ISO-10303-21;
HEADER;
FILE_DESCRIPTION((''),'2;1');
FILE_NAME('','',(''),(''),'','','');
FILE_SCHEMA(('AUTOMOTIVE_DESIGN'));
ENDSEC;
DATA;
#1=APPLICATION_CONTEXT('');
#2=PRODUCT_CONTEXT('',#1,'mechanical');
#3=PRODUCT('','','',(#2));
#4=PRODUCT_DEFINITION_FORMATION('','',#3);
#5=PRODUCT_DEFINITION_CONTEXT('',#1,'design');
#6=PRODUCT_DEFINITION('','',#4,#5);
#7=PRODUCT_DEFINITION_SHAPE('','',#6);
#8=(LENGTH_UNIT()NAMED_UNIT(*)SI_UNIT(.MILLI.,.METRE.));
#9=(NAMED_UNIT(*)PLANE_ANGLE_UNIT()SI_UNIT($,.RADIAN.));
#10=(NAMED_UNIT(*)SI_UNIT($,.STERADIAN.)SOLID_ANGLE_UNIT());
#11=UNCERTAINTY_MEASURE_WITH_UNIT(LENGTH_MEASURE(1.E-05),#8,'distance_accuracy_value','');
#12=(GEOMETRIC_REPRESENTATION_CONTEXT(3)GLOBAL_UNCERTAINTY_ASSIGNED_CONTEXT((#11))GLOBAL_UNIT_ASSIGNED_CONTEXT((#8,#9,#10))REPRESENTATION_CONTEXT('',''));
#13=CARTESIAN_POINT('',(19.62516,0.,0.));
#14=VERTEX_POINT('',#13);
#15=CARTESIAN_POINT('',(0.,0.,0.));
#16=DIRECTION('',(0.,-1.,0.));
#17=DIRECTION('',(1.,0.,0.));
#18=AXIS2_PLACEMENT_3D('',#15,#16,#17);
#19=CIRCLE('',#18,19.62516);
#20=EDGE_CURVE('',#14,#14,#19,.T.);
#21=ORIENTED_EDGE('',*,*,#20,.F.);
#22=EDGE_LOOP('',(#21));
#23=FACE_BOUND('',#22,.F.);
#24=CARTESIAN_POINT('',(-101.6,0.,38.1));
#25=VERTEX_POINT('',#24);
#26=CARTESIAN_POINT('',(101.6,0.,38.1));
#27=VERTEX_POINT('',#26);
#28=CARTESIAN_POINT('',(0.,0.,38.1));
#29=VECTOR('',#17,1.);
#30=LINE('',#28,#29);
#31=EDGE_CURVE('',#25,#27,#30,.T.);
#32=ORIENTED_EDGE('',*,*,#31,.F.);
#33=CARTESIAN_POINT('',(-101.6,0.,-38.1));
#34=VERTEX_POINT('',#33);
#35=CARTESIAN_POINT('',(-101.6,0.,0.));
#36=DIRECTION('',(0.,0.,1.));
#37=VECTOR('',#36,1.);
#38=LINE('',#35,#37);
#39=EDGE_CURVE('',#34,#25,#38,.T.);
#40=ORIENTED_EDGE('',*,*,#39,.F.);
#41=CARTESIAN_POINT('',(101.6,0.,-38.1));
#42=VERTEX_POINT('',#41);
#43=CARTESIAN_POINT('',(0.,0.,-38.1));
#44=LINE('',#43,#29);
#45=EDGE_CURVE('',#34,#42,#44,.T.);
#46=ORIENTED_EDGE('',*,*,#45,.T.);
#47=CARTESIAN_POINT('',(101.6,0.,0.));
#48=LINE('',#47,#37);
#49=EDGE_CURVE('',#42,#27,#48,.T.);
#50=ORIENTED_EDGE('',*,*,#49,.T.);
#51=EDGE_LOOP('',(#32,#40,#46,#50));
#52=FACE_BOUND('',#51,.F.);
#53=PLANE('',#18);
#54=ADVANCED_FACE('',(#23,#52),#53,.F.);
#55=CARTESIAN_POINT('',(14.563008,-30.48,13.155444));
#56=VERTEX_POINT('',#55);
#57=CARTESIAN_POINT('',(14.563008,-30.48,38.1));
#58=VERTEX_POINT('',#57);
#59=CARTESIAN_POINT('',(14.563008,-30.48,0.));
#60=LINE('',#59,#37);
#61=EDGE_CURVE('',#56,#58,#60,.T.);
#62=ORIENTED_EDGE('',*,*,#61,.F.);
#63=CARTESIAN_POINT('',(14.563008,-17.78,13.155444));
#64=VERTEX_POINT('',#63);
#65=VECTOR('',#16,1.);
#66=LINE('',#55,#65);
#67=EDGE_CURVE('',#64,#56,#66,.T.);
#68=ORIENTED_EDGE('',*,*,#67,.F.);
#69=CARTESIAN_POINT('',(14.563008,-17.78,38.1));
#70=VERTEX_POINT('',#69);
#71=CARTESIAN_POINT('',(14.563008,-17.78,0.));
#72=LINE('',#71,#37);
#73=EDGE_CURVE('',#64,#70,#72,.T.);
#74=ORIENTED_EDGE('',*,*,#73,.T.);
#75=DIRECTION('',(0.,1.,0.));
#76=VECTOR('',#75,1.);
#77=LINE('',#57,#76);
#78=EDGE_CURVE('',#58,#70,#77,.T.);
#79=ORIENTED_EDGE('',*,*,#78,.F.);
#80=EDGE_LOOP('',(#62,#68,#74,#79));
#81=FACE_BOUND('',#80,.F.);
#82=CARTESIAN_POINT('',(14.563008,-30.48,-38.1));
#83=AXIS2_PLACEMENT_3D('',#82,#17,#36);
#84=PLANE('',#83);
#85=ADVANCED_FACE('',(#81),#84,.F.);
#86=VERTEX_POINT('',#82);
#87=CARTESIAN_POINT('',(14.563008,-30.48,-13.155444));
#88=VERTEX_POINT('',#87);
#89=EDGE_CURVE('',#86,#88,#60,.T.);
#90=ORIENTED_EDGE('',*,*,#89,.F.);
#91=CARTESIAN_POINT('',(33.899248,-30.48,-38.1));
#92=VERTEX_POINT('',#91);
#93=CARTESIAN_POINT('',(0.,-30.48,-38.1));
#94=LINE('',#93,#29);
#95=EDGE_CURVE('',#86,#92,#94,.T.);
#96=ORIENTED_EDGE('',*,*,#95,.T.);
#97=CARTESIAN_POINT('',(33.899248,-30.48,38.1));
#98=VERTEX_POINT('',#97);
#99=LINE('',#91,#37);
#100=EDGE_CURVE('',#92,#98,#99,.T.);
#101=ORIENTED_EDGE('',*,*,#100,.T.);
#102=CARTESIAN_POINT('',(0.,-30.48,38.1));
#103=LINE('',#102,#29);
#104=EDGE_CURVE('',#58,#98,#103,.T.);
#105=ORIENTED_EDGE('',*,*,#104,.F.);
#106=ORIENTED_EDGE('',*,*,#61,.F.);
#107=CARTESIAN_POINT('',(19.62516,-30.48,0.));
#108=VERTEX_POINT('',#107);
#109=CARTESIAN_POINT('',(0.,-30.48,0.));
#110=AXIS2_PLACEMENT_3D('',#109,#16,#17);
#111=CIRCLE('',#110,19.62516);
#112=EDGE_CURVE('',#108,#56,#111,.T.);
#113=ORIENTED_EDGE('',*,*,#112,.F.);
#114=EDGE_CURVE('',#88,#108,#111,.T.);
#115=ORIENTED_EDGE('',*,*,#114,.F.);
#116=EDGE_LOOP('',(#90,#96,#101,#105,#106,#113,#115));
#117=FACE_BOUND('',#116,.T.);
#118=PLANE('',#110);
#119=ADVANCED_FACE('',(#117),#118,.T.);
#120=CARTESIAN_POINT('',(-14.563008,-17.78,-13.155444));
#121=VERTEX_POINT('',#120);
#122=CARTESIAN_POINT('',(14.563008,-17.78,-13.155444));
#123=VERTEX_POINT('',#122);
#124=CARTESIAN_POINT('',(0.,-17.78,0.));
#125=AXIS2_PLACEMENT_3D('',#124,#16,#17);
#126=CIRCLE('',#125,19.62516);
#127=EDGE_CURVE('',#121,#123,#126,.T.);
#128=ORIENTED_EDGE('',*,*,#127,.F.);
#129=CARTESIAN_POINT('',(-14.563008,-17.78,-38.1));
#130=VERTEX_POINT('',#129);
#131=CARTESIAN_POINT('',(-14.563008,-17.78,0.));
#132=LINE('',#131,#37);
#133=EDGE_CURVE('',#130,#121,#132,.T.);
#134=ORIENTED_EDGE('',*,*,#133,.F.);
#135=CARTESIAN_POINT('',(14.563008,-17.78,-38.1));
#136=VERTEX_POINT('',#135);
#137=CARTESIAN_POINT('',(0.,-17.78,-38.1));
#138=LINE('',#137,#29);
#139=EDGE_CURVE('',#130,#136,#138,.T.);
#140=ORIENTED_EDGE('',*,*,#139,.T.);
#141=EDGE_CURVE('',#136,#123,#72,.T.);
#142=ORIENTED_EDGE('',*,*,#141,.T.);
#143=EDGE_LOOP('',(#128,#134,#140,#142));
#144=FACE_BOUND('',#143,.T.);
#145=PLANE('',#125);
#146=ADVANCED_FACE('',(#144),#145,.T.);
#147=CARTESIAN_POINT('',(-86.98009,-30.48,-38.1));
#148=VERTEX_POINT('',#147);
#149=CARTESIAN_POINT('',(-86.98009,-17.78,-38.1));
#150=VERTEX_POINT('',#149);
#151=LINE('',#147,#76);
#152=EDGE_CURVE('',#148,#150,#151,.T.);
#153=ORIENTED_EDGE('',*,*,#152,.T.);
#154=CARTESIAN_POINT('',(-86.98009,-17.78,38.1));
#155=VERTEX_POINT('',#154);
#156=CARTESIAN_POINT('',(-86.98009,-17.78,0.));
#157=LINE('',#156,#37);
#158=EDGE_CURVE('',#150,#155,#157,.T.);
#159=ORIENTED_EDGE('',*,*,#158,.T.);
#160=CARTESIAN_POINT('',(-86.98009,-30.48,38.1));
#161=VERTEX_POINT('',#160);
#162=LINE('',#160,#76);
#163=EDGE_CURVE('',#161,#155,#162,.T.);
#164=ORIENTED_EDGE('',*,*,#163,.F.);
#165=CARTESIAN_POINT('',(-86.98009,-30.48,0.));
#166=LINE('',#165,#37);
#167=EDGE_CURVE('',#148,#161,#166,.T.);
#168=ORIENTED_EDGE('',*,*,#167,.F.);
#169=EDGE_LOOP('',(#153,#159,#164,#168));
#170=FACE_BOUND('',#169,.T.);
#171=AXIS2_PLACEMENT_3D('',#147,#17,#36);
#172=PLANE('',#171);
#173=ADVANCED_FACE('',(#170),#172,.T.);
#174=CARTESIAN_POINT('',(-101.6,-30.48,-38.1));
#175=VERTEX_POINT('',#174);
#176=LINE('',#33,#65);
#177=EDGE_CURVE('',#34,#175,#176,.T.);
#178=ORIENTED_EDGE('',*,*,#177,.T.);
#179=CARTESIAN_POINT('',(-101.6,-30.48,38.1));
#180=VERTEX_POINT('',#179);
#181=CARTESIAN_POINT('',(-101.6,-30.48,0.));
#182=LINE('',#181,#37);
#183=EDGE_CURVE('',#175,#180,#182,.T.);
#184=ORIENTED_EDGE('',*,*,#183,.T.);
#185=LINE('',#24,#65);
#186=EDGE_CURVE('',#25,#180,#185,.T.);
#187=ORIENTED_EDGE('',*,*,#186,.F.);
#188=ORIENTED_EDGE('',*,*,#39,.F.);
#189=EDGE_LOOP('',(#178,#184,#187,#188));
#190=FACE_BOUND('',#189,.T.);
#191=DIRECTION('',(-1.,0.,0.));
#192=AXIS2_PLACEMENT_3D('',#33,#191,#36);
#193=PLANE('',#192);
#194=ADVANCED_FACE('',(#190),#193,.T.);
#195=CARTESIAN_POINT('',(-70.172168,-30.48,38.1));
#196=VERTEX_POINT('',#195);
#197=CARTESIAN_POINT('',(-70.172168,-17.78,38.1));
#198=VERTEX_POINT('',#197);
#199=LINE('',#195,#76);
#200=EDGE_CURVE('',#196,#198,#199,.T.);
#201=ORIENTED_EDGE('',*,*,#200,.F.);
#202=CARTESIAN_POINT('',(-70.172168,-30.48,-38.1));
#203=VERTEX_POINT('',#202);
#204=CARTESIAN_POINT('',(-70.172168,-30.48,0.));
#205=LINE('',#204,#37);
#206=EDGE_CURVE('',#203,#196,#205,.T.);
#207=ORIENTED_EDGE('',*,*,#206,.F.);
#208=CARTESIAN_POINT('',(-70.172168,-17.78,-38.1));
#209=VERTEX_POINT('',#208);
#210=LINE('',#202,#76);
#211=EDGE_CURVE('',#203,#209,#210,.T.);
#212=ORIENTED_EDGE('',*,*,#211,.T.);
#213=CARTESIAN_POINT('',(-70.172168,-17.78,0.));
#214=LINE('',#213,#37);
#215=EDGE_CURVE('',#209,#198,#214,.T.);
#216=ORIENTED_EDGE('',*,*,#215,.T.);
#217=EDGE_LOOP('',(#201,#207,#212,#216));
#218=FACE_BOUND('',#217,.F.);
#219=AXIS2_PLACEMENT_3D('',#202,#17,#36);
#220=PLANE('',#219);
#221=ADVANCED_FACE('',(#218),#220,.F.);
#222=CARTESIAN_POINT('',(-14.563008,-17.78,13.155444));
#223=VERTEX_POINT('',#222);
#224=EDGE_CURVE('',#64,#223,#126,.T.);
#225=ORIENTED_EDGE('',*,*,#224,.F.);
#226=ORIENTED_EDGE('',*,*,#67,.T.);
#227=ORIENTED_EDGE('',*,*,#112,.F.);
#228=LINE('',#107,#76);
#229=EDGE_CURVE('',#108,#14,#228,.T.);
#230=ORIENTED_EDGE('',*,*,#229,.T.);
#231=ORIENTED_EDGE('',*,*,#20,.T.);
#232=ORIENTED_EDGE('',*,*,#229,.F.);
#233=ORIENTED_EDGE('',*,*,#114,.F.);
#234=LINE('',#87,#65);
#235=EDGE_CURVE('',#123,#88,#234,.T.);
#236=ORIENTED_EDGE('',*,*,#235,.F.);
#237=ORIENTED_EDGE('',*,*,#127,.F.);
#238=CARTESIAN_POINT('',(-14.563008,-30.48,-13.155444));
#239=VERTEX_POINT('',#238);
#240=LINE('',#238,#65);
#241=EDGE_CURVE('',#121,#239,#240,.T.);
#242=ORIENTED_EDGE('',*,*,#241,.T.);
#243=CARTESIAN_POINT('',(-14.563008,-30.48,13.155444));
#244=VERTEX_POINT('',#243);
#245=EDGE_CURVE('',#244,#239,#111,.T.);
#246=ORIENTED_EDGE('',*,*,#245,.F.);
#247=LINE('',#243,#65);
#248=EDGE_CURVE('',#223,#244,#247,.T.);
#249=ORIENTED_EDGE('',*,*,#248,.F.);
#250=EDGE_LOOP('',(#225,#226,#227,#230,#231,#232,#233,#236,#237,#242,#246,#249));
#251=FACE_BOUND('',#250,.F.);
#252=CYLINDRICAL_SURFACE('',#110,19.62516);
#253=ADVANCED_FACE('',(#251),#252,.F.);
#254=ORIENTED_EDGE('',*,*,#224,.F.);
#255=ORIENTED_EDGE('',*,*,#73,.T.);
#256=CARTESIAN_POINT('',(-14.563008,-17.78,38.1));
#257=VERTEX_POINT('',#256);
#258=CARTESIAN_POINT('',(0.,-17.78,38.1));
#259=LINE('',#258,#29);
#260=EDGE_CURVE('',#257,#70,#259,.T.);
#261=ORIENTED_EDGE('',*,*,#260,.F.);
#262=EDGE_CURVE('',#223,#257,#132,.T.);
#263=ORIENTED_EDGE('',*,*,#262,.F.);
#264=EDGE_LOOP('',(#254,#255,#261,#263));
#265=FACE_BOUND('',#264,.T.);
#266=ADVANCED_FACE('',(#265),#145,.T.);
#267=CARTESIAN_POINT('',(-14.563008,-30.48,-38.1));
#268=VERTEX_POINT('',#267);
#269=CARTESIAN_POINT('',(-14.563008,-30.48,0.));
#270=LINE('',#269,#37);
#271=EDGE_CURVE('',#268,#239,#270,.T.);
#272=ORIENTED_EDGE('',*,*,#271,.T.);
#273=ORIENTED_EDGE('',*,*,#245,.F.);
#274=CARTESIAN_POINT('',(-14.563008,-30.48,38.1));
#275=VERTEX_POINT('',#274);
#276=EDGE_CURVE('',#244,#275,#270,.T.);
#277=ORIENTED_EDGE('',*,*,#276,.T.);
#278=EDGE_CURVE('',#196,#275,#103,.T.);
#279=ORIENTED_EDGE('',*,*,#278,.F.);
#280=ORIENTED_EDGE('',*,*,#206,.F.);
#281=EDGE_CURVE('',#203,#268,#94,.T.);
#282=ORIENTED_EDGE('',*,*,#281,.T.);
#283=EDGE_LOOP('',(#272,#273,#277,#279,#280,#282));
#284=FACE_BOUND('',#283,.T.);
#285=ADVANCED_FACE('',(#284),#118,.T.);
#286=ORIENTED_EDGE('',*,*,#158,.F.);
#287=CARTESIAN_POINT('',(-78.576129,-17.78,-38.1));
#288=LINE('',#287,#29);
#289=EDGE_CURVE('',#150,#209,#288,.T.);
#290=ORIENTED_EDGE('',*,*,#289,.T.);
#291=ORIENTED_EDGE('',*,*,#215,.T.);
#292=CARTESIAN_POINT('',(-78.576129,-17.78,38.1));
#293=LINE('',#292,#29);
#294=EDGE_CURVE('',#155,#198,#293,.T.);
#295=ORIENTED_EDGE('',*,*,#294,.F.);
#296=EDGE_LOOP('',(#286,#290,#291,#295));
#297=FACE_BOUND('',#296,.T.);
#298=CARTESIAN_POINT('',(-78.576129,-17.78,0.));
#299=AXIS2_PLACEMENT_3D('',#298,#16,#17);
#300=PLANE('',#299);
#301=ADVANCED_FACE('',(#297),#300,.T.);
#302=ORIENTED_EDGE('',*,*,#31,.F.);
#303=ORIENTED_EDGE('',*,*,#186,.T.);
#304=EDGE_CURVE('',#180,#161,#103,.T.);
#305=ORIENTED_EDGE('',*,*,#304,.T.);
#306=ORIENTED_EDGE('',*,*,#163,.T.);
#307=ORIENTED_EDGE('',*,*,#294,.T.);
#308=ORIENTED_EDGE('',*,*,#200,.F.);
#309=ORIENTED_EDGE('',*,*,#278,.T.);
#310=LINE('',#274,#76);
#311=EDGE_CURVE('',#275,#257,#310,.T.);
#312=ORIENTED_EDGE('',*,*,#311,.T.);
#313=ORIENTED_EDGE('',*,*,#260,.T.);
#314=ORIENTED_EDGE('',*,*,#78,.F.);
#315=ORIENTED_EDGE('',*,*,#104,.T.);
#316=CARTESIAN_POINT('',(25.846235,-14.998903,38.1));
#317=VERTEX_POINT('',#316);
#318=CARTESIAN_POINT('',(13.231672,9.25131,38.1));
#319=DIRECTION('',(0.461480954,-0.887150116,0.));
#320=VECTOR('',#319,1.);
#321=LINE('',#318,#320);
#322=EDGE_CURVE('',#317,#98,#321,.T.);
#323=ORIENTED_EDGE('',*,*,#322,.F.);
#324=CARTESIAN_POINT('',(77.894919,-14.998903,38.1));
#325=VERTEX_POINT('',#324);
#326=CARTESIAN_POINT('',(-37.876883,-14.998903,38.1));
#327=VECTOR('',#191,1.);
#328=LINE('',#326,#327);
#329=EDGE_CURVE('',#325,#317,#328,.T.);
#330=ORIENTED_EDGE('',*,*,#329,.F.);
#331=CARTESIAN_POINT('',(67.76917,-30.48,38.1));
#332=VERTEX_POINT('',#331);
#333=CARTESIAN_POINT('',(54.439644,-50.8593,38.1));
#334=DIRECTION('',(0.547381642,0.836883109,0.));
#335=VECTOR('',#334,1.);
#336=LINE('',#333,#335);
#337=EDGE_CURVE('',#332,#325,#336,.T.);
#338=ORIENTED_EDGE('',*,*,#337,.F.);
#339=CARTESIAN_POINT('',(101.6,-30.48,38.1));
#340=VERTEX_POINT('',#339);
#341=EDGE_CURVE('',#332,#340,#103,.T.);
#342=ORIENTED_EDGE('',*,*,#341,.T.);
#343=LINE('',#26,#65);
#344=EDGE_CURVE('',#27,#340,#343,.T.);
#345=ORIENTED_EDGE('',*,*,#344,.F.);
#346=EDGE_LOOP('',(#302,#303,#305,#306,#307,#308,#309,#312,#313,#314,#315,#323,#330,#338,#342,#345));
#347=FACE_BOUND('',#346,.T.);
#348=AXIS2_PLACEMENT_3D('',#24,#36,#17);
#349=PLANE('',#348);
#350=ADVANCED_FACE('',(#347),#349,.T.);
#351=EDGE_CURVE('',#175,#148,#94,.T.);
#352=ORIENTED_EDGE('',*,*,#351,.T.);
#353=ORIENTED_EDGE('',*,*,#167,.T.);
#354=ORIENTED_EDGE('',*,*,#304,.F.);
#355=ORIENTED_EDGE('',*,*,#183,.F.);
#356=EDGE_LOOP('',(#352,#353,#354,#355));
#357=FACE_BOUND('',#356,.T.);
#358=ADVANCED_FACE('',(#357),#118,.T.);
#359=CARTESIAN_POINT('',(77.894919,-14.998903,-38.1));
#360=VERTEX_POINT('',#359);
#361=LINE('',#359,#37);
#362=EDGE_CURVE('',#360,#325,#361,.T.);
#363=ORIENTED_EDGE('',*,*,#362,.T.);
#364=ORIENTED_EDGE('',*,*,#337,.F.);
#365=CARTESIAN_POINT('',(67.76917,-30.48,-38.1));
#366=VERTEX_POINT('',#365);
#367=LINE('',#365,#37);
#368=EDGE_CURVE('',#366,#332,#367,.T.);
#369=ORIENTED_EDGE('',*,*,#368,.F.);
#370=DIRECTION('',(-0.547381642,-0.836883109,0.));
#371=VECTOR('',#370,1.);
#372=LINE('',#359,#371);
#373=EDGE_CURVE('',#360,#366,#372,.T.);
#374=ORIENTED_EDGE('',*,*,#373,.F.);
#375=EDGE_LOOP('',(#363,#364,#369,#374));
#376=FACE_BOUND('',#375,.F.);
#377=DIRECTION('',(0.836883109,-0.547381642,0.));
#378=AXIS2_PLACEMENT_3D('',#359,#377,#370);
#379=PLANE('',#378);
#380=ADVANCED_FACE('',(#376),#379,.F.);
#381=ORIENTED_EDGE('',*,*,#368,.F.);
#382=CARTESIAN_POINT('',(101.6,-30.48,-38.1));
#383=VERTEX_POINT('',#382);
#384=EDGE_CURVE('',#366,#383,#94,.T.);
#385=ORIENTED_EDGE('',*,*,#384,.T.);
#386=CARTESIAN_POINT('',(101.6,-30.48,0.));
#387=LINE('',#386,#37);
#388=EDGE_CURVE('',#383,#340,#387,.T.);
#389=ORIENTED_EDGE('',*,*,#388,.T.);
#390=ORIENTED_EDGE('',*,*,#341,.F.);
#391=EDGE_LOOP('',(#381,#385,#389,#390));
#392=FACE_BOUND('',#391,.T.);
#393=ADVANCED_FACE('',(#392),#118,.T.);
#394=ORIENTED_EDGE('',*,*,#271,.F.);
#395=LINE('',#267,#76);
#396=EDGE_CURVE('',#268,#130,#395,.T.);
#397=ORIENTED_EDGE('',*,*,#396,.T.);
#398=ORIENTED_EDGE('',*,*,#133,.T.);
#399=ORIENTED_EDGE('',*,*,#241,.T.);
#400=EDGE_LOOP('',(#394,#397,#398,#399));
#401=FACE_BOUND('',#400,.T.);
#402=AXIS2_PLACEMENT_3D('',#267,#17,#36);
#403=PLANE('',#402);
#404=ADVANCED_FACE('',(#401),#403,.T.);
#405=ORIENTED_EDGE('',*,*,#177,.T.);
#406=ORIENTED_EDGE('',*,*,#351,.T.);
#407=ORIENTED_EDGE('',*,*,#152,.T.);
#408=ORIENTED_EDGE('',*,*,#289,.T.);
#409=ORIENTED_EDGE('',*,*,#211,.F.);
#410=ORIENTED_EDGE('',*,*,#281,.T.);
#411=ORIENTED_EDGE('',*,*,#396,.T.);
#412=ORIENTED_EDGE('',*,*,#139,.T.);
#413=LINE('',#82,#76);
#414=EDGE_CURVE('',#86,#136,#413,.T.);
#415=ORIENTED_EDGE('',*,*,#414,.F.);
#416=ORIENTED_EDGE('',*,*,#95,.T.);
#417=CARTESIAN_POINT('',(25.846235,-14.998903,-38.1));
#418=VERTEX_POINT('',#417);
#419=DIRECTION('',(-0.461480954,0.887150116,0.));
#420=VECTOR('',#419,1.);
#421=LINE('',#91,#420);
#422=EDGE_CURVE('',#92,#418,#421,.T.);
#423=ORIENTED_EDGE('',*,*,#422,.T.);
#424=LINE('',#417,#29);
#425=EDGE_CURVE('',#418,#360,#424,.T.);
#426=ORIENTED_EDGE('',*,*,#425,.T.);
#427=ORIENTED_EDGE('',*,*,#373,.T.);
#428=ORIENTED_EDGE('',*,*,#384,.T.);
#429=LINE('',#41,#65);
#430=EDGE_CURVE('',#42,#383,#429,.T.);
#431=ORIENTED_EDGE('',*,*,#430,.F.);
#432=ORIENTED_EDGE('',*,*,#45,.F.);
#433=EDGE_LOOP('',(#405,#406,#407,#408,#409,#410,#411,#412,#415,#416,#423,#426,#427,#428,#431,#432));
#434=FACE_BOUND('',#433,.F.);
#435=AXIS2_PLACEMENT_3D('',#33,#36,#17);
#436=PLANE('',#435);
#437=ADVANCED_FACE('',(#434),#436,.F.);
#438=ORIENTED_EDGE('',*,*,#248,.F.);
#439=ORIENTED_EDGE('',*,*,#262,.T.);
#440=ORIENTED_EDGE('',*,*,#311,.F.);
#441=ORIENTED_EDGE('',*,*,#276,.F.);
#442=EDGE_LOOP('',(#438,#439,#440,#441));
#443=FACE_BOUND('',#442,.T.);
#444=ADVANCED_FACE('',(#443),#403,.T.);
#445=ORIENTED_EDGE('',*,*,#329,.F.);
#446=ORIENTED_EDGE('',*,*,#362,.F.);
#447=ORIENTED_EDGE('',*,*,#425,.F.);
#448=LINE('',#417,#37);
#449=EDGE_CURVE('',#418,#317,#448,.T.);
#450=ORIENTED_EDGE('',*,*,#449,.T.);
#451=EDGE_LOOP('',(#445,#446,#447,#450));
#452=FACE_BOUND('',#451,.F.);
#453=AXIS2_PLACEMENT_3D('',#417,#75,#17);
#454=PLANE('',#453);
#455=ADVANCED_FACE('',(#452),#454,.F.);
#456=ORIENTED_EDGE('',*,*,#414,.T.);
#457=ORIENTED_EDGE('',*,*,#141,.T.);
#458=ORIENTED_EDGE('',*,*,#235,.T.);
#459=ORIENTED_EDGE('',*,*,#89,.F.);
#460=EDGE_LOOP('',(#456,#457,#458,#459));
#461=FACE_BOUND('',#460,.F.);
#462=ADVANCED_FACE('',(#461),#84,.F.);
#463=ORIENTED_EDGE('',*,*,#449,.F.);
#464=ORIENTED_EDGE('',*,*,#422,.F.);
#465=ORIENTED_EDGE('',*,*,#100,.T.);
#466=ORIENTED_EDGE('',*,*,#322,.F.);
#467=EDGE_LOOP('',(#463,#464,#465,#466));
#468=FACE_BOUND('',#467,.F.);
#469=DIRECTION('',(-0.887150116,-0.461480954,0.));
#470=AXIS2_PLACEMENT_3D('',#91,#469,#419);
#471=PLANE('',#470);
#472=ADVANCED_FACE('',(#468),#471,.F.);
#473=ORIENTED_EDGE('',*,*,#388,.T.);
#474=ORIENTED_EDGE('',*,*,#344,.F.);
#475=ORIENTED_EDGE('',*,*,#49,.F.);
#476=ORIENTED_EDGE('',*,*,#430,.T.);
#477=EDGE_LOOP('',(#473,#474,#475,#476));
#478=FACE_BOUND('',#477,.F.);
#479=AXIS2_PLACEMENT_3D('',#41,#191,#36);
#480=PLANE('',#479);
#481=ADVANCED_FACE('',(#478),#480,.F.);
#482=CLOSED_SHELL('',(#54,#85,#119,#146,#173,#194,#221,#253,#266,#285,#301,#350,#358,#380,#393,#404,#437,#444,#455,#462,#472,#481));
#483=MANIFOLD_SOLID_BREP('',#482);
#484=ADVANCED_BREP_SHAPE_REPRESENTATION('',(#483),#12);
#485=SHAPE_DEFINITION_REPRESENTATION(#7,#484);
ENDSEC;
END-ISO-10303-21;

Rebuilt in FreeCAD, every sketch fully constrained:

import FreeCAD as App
import Part
import Sketcher
Q = App.Units.Quantity


def add_polygon(sketch, points):
    """Adds a closed chain of lines whose ends are joined by coincident constraints."""
    first, n = sketch.GeometryCount, len(points)
    for a, b in zip(points, points[1:] + points[:1]):
        sketch.addGeometry(Part.LineSegment(App.Vector(*a, 0), App.Vector(*b, 0)), False)
    for i in range(n):
        sketch.addConstraint(Sketcher.Constraint("Coincident", first + i, 2, first + (i + 1) % n, 1))

doc = App.newDocument("Part")
body = doc.addObject("PartDesign::Body", "Body")

# Sketch on XZ plane
sketch1 = body.newObject("Sketcher::SketchObject", "Sketch")
sketch1.AttachmentSupport = (doc.getObject("XZ_Plane"), [""])
sketch1.MapMode = "FlatFace"
add_polygon(sketch1, [(-102, 38), (-102, -38), (102, -38), (102, 38)])  # lines 0-3
sketch1.addConstraint([
    Sketcher.Constraint("Vertical", 0),
    Sketcher.Constraint("Horizontal", 1),
    Sketcher.Constraint("Vertical", 2),
    Sketcher.Constraint("Horizontal", 3),
    Sketcher.Constraint("Symmetric", 0, 2, 2, 2, -1, 1),
    Sketcher.Constraint("DistanceX", 1, 1, 1, 2, Q("8 in")),
    Sketcher.Constraint("DistanceY", 0, 2, 0, 1, Q("3 in")),
])
pad1 = body.newObject("PartDesign::Pad", "Pad")
pad1.Profile = sketch1
pad1.Length = Q("1.2 in")

# Sketch on XZ plane
sketch2 = body.newObject("Sketcher::SketchObject", "Sketch001")
sketch2.AttachmentSupport = (doc.getObject("XZ_Plane"), [""])
sketch2.MapMode = "FlatFace"
sketch2.AttachmentOffset = App.Placement(App.Vector(0, 0, 1.2 * 25.4), App.Rotation())
sketch2.addGeometry(Part.Circle(App.Vector(0, 0, 0), App.Vector(0, 0, 1), 20), False)
sketch2.addConstraint([
    Sketcher.Constraint("Coincident", 0, 3, -1, 1),
    Sketcher.Constraint("Diameter", 0, Q("39.25032 mm")),
])
pocket1 = body.newObject("PartDesign::Pocket", "Pocket")
pocket1.Profile = sketch2
pocket1.Type = "ThroughAll"

# Sketch on XZ plane
sketch3 = body.newObject("Sketcher::SketchObject", "Sketch002")
sketch3.AttachmentSupport = (doc.getObject("XZ_Plane"), [""])
sketch3.MapMode = "FlatFace"
sketch3.AttachmentOffset = App.Placement(App.Vector(0, 0, 1.2 * 25.4), App.Rotation())
add_polygon(sketch3, [(-87, 38), (-87, -38), (-70, -38), (-70, 38)])  # lines 0-3
add_polygon(sketch3, [(-15, 38), (-15, -38), (15, -38), (15, 38)])  # lines 4-7
sketch3.addConstraint([
    Sketcher.Constraint("Vertical", 0),
    Sketcher.Constraint("Horizontal", 1),
    Sketcher.Constraint("Vertical", 2),
    Sketcher.Constraint("Horizontal", 3),
    Sketcher.Constraint("Vertical", 4),
    Sketcher.Constraint("Horizontal", 5),
    Sketcher.Constraint("Vertical", 6),
    Sketcher.Constraint("Horizontal", 7),
    Sketcher.Constraint("Symmetric", 4, 2, 6, 2, -1, 1),
    Sketcher.Constraint("Horizontal", 1, 2, 4, 2),
    Sketcher.Constraint("Horizontal", 3, 2, 6, 2),
    Sketcher.Constraint("DistanceY", 0, 2, 0, 1, Q("3 in")),
    Sketcher.Constraint("DistanceX", 0, 2, 5, 2, Q("101.543098 mm")),
    Sketcher.Constraint("DistanceX", 1, 1, 1, 2, Q("16.807922 mm")),
    Sketcher.Constraint("DistanceX", 5, 1, 5, 2, Q("29.126016 mm")),
])
pocket2 = body.newObject("PartDesign::Pocket", "Pocket001")
pocket2.Profile = sketch3
pocket2.Length = Q("0.5 in")

# Sketch on XY plane
sketch4 = body.newObject("Sketcher::SketchObject", "Sketch003")
sketch4.AttachmentSupport = (doc.getObject("XY_Plane"), [""])
sketch4.MapMode = "FlatFace"
sketch4.AttachmentOffset = App.Placement(App.Vector(0, 0, -1.5 * 25.4), App.Rotation())
add_polygon(sketch4, [(68, -30), (34, -30), (26, -15), (78, -15)])  # lines 0-3
sketch4.addConstraint([
    Sketcher.Constraint("Horizontal", 0),
    Sketcher.Constraint("Horizontal", 2),
    Sketcher.Constraint("DistanceY", 0, 2, -1, 1, Q("1.2 in")),
    Sketcher.Constraint("Distance", 1, Q("17.450369 mm")),
    Sketcher.Constraint("DistanceX", 0, 2, 0, 1, Q("33.869922 mm")),
    Sketcher.Constraint("DistanceX", 2, 1, 2, 2, Q("52.048684 mm")),
    Sketcher.Constraint("DistanceX", -1, 1, 2, 2, Q("77.894919 mm")),
    Sketcher.Constraint("DistanceX", -1, 1, 3, 2, Q("67.76917 mm")),
])
pocket3 = body.newObject("PartDesign::Pocket", "Pocket002")
pocket3.Profile = sketch4
pocket3.Type = "ThroughAll"
pocket3.Reversed = True

doc.recompute()
